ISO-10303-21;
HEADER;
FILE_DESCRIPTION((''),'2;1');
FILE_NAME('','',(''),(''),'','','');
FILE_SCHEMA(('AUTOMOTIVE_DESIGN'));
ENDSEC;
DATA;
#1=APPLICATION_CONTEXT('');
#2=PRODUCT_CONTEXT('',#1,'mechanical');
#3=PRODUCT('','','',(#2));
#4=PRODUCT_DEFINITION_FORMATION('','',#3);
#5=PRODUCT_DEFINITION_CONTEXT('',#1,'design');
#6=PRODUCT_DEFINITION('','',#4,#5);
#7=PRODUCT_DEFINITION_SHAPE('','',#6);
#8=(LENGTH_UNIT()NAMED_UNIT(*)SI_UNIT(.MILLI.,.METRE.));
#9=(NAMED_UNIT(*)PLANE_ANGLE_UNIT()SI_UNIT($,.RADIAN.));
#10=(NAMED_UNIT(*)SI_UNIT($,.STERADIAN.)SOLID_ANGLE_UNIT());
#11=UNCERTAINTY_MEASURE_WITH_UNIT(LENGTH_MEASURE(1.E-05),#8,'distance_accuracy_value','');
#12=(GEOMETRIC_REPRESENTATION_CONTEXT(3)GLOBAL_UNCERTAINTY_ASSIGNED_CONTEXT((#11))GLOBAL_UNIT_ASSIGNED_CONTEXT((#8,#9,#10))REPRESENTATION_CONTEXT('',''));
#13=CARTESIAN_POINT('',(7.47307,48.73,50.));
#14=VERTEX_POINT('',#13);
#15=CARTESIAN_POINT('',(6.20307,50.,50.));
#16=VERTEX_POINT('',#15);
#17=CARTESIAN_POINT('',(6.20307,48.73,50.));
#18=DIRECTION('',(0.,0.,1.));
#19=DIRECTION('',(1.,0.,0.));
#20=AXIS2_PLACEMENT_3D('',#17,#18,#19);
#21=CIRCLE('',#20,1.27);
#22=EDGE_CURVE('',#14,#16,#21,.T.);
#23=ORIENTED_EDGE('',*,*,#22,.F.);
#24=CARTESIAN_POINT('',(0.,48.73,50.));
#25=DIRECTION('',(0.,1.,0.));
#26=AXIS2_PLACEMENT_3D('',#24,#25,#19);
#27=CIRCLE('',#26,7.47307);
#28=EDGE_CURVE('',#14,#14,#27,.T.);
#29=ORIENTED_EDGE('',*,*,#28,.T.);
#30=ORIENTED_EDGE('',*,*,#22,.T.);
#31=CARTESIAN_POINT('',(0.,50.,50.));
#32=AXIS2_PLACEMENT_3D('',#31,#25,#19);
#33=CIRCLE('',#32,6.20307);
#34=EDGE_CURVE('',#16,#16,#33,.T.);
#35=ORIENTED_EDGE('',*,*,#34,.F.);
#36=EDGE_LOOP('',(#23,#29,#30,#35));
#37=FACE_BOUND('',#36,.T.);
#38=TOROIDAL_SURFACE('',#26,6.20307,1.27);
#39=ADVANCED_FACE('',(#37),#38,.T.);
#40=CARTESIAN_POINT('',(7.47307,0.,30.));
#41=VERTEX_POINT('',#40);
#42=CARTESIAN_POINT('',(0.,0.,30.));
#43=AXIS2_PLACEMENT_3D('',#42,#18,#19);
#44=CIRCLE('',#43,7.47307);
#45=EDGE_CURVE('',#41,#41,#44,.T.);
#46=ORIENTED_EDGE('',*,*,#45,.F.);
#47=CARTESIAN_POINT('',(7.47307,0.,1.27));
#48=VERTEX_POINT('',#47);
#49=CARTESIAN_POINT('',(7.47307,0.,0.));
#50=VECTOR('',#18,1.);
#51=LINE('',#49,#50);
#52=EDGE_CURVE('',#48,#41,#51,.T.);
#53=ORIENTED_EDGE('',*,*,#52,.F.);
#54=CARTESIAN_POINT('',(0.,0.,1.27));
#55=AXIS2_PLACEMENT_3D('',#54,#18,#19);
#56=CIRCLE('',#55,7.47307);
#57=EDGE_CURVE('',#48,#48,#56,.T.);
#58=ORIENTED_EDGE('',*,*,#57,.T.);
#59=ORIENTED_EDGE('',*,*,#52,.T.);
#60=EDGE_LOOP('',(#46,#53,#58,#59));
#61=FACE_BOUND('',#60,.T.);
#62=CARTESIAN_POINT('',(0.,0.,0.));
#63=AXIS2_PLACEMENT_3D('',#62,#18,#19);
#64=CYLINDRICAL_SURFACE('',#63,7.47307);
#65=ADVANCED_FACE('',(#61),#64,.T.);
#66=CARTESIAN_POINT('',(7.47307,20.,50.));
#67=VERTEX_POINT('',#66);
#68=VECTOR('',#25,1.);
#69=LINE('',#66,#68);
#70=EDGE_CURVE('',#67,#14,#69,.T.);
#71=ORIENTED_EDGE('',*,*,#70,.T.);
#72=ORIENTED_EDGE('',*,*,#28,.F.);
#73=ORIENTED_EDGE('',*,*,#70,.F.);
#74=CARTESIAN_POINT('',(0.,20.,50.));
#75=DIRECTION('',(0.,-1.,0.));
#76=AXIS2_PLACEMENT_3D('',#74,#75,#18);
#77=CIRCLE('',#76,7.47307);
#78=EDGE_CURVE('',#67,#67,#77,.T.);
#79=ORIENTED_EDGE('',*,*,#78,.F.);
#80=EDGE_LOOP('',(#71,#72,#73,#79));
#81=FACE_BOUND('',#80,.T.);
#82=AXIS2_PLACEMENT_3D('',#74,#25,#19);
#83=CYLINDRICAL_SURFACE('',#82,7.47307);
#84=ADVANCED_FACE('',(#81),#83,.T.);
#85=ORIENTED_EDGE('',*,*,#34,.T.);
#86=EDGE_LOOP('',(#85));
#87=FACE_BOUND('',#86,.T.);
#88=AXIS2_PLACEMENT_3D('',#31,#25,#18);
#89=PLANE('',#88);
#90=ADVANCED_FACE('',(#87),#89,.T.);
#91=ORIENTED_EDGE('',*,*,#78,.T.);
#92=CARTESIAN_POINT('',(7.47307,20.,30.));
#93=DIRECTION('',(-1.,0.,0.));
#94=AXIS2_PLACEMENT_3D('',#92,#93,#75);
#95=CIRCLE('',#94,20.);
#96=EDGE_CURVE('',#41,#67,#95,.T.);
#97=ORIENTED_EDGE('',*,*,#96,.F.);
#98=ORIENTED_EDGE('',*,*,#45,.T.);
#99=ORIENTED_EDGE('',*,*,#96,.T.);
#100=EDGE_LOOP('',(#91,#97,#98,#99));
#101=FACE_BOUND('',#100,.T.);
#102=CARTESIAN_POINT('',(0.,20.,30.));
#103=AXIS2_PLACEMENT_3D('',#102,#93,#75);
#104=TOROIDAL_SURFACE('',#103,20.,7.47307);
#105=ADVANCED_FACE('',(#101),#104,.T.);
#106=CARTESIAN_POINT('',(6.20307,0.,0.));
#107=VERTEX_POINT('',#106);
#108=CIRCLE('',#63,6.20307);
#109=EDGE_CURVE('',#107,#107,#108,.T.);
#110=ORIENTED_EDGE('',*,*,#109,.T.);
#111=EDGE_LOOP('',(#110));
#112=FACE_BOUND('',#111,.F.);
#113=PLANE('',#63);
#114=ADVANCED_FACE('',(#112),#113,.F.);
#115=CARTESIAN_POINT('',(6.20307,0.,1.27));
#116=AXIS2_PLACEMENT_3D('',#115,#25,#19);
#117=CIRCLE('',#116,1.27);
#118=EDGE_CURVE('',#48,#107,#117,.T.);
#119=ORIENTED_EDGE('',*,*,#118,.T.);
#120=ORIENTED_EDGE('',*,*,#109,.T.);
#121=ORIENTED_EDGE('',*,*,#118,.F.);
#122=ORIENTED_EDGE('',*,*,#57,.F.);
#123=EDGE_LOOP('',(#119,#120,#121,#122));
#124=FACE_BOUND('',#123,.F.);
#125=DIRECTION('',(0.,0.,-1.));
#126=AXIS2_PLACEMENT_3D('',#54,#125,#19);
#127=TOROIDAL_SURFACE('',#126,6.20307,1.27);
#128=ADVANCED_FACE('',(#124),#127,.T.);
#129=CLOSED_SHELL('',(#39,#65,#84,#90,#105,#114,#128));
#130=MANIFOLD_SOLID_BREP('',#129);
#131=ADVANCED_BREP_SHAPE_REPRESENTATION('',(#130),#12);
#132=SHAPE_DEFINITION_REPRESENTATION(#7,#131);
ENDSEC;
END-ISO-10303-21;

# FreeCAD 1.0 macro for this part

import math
import FreeCAD as App
import Part
import Sketcher


def edges_at(feature, points):
    """Names of the edges that pass closest to the given points."""
    edges = feature.Shape.Edges
    near = lambda p: min(range(len(edges)), key=lambda i: edges[i].distToShape(Part.Vertex(*p))[0])
    return sorted({f"Edge{near(p) + 1}" for p in points})

doc = App.newDocument("Part")
body = doc.addObject("PartDesign::Body", "Body")

sketch1 = doc.addObject("Sketcher::SketchObject", "Sketch")
body.addObject(sketch1)
sketch1.AttachmentSupport = (doc.XY_Plane, [""])
sketch1.MapMode = "FlatFace"
sketch1.addGeometry(Part.Circle(App.Vector(0, 0, 0), App.Vector(0, 0, 1), 7), False)
sketch1.addConstraint([
    Sketcher.Constraint("Coincident", 0, 3, -1, 1),
    Sketcher.Constraint("Diameter", 0, 14.94614),
])

sketch2 = doc.addObject("Sketcher::SketchObject", "Sketch001")
body.addObject(sketch2)
sketch2.AttachmentSupport = (doc.YZ_Plane, [""])
sketch2.MapMode = "FlatFace"
sketch2.addGeometry([
    Part.LineSegment(App.Vector(0, 0, 0), App.Vector(0, 30, 0)),
    Part.ArcOfCircle(Part.Circle(App.Vector(20, 30, 0), App.Vector(0, 0, 1), 20), math.radians(90), math.radians(180)),
    Part.LineSegment(App.Vector(20, 50, 0), App.Vector(50, 50, 0)),
], False)
sketch2.addConstraint([
    Sketcher.Constraint("Tangent", 0, 2, 1, 2),
    Sketcher.Constraint("Tangent", 1, 1, 2, 1),
    Sketcher.Constraint("Vertical", 0),
    Sketcher.Constraint("Horizontal", 2),
    Sketcher.Constraint("Coincident", 0, 1, -1, 1),
    Sketcher.Constraint("Equal", 2, 0),
    Sketcher.Constraint("Radius", 1, 20.0),
    Sketcher.Constraint("DistanceX", 2, 1, 2, 2, 30.0),
])
doc.recompute()

additivepipe = doc.addObject("PartDesign::AdditivePipe", "AdditivePipe")
body.addObject(additivepipe)
additivepipe.Profile = sketch1
additivepipe.Spine = (sketch2, ["Edge1", "Edge2", "Edge3"])
doc.recompute()

fillet = doc.addObject("PartDesign::Fillet", "Fillet")
body.addObject(fillet)
fillet.Base = (additivepipe, edges_at(additivepipe, [(-7.473, 50, 50), (-7.473, 0, 0)]))
fillet.Radius = 1.27

doc.recompute()
